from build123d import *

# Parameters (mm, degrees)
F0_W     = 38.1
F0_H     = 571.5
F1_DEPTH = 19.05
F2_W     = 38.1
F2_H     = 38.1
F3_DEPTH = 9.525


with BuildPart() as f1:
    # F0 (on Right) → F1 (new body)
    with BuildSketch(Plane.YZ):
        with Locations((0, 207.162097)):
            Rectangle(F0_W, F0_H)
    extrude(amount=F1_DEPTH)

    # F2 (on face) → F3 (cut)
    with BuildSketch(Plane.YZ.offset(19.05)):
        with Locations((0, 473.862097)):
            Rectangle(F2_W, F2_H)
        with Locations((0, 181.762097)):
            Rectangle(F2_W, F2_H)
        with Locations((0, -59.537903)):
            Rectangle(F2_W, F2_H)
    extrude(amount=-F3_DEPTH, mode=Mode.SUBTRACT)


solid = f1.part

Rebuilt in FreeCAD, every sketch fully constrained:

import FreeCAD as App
import Part
import Sketcher

V = App.Vector
Q = App.Units.Quantity

doc = App.newDocument("Part")
body = doc.addObject("PartDesign::Body", "Body")

# Sketch on YZ plane
sketch1 = doc.addObject("Sketcher::SketchObject", "Sketch")
body.addObject(sketch1)
sketch1.AttachmentSupport = (doc.YZ_Plane, [""])
sketch1.MapMode = "FlatFace"
sketch1.addGeometry([
    Part.LineSegment(V(-19.05, 492.912097, 0), V(-19.05, -78.587903, 0)),
    Part.LineSegment(V(-19.05, -78.587903, 0), V(19.05, -78.587903, 0)),
    Part.LineSegment(V(19.05, -78.587903, 0), V(19.05, 492.912097, 0)),
    Part.LineSegment(V(19.05, 492.912097, 0), V(-19.05, 492.912097, 0)),
], False)
sketch1.addConstraint([
    Sketcher.Constraint("Coincident", 0, 2, 1, 1),
    Sketcher.Constraint("Coincident", 1, 2, 2, 1),
    Sketcher.Constraint("Coincident", 2, 2, 3, 1),
    Sketcher.Constraint("Coincident", 3, 2, 0, 1),
    Sketcher.Constraint("Vertical", 0),
    Sketcher.Constraint("Horizontal", 1),
    Sketcher.Constraint("Vertical", 2),
    Sketcher.Constraint("Horizontal", 3),
    Sketcher.Constraint("DistanceX", 1, 1, 1, 2, Q("1.5 in")),
    Sketcher.Constraint("DistanceY", 0, 2, 0, 1, Q("22.5 in")),
    Sketcher.Constraint("DistanceX", 0, 2, -1, 1, Q("0.75 in")),
    Sketcher.Constraint("DistanceY", 0, 2, -1, 1, 78.587903),
])
pad1 = doc.addObject("PartDesign::Pad", "Pad")
body.addObject(pad1)
pad1.Profile = sketch1
pad1.Length = Q("0.75 in")

# Sketch on YZ plane
sketch2 = doc.addObject("Sketcher::SketchObject", "Sketch001")
body.addObject(sketch2)
sketch2.AttachmentSupport = (doc.YZ_Plane, [""])
sketch2.MapMode = "FlatFace"
sketch2.AttachmentOffset = App.Placement(V(0, 0, 0.75 * 25.4), App.Rotation())
sketch2.addGeometry([
    Part.LineSegment(V(-19.05, 492.912097, 0), V(-19.05, 454.812097, 0)),  # 0
    Part.LineSegment(V(-19.05, 454.812097, 0), V(19.05, 454.812097, 0)),  # 1
    Part.LineSegment(V(19.05, 454.812097, 0), V(19.05, 492.912097, 0)),  # 2
    Part.LineSegment(V(19.05, 492.912097, 0), V(-19.05, 492.912097, 0)),  # 3
    Part.LineSegment(V(-19.05, 200.812097, 0), V(-19.05, 162.712097, 0)),  # 4
    Part.LineSegment(V(-19.05, 162.712097, 0), V(19.05, 162.712097, 0)),  # 5
    Part.LineSegment(V(19.05, 162.712097, 0), V(19.05, 200.812097, 0)),  # 6
    Part.LineSegment(V(19.05, 200.812097, 0), V(-19.05, 200.812097, 0)),  # 7
    Part.LineSegment(V(-19.05, -40.487903, 0), V(-19.05, -78.587903, 0)),  # 8
    Part.LineSegment(V(-19.05, -78.587903, 0), V(19.05, -78.587903, 0)),  # 9
    Part.LineSegment(V(19.05, -78.587903, 0), V(19.05, -40.487903, 0)),  # 10
    Part.LineSegment(V(19.05, -40.487903, 0), V(-19.05, -40.487903, 0)),  # 11
], False)
sketch2.addConstraint([
    Sketcher.Constraint("Coincident", 0, 2, 1, 1),
    Sketcher.Constraint("Coincident", 1, 2, 2, 1),
    Sketcher.Constraint("Coincident", 2, 2, 3, 1),
    Sketcher.Constraint("Coincident", 3, 2, 0, 1),
    Sketcher.Constraint("Coincident", 4, 2, 5, 1),
    Sketcher.Constraint("Coincident", 5, 2, 6, 1),
    Sketcher.Constraint("Coincident", 6, 2, 7, 1),
    Sketcher.Constraint("Coincident", 7, 2, 4, 1),
    Sketcher.Constraint("Coincident", 8, 2, 9, 1),
    Sketcher.Constraint("Coincident", 9, 2, 10, 1),
    Sketcher.Constraint("Coincident", 10, 2, 11, 1),
    Sketcher.Constraint("Coincident", 11, 2, 8, 1),
    Sketcher.Constraint("Vertical", 0),
    Sketcher.Constraint("Horizontal", 1),
    Sketcher.Constraint("Vertical", 2),
    Sketcher.Constraint("Horizontal", 3),
    Sketcher.Constraint("Vertical", 4),
    Sketcher.Constraint("Horizontal", 5),
    Sketcher.Constraint("Vertical", 6),
    Sketcher.Constraint("Horizontal", 7),
    Sketcher.Constraint("Vertical", 8),
    Sketcher.Constraint("Horizontal", 9),
    Sketcher.Constraint("Vertical", 10),
    Sketcher.Constraint("Horizontal", 11),
    Sketcher.Constraint("Vertical", 3, 2, 4, 2),
    Sketcher.Constraint("Vertical", 2, 2, 5, 2),
    Sketcher.Constraint("Vertical", 7, 2, 8, 2),
    Sketcher.Constraint("Vertical", 6, 2, 9, 2),
    Sketcher.Constraint("Equal", 11, 0),
    Sketcher.Constraint("Equal", 2, 4),
    Sketcher.Constraint("Equal", 6, 8),
    Sketcher.Constraint("DistanceX", 1, 1, 1, 2, Q("1.5 in")),
    Sketcher.Constraint("DistanceY", 4, 2, 3, 2, Q("13 in")),
    Sketcher.Constraint("DistanceY", 8, 2, 7, 2, Q("11 in")),
    Sketcher.Constraint("DistanceX", 0, 2, -1, 1, Q("0.75 in")),
    Sketcher.Constraint("DistanceY", -1, 1, 0, 2, 454.812097),
])
pocket1 = doc.addObject("PartDesign::Pocket", "Pocket")
body.addObject(pocket1)
pocket1.Profile = sketch2
pocket1.Length = Q("0.375 in")

doc.recompute()
